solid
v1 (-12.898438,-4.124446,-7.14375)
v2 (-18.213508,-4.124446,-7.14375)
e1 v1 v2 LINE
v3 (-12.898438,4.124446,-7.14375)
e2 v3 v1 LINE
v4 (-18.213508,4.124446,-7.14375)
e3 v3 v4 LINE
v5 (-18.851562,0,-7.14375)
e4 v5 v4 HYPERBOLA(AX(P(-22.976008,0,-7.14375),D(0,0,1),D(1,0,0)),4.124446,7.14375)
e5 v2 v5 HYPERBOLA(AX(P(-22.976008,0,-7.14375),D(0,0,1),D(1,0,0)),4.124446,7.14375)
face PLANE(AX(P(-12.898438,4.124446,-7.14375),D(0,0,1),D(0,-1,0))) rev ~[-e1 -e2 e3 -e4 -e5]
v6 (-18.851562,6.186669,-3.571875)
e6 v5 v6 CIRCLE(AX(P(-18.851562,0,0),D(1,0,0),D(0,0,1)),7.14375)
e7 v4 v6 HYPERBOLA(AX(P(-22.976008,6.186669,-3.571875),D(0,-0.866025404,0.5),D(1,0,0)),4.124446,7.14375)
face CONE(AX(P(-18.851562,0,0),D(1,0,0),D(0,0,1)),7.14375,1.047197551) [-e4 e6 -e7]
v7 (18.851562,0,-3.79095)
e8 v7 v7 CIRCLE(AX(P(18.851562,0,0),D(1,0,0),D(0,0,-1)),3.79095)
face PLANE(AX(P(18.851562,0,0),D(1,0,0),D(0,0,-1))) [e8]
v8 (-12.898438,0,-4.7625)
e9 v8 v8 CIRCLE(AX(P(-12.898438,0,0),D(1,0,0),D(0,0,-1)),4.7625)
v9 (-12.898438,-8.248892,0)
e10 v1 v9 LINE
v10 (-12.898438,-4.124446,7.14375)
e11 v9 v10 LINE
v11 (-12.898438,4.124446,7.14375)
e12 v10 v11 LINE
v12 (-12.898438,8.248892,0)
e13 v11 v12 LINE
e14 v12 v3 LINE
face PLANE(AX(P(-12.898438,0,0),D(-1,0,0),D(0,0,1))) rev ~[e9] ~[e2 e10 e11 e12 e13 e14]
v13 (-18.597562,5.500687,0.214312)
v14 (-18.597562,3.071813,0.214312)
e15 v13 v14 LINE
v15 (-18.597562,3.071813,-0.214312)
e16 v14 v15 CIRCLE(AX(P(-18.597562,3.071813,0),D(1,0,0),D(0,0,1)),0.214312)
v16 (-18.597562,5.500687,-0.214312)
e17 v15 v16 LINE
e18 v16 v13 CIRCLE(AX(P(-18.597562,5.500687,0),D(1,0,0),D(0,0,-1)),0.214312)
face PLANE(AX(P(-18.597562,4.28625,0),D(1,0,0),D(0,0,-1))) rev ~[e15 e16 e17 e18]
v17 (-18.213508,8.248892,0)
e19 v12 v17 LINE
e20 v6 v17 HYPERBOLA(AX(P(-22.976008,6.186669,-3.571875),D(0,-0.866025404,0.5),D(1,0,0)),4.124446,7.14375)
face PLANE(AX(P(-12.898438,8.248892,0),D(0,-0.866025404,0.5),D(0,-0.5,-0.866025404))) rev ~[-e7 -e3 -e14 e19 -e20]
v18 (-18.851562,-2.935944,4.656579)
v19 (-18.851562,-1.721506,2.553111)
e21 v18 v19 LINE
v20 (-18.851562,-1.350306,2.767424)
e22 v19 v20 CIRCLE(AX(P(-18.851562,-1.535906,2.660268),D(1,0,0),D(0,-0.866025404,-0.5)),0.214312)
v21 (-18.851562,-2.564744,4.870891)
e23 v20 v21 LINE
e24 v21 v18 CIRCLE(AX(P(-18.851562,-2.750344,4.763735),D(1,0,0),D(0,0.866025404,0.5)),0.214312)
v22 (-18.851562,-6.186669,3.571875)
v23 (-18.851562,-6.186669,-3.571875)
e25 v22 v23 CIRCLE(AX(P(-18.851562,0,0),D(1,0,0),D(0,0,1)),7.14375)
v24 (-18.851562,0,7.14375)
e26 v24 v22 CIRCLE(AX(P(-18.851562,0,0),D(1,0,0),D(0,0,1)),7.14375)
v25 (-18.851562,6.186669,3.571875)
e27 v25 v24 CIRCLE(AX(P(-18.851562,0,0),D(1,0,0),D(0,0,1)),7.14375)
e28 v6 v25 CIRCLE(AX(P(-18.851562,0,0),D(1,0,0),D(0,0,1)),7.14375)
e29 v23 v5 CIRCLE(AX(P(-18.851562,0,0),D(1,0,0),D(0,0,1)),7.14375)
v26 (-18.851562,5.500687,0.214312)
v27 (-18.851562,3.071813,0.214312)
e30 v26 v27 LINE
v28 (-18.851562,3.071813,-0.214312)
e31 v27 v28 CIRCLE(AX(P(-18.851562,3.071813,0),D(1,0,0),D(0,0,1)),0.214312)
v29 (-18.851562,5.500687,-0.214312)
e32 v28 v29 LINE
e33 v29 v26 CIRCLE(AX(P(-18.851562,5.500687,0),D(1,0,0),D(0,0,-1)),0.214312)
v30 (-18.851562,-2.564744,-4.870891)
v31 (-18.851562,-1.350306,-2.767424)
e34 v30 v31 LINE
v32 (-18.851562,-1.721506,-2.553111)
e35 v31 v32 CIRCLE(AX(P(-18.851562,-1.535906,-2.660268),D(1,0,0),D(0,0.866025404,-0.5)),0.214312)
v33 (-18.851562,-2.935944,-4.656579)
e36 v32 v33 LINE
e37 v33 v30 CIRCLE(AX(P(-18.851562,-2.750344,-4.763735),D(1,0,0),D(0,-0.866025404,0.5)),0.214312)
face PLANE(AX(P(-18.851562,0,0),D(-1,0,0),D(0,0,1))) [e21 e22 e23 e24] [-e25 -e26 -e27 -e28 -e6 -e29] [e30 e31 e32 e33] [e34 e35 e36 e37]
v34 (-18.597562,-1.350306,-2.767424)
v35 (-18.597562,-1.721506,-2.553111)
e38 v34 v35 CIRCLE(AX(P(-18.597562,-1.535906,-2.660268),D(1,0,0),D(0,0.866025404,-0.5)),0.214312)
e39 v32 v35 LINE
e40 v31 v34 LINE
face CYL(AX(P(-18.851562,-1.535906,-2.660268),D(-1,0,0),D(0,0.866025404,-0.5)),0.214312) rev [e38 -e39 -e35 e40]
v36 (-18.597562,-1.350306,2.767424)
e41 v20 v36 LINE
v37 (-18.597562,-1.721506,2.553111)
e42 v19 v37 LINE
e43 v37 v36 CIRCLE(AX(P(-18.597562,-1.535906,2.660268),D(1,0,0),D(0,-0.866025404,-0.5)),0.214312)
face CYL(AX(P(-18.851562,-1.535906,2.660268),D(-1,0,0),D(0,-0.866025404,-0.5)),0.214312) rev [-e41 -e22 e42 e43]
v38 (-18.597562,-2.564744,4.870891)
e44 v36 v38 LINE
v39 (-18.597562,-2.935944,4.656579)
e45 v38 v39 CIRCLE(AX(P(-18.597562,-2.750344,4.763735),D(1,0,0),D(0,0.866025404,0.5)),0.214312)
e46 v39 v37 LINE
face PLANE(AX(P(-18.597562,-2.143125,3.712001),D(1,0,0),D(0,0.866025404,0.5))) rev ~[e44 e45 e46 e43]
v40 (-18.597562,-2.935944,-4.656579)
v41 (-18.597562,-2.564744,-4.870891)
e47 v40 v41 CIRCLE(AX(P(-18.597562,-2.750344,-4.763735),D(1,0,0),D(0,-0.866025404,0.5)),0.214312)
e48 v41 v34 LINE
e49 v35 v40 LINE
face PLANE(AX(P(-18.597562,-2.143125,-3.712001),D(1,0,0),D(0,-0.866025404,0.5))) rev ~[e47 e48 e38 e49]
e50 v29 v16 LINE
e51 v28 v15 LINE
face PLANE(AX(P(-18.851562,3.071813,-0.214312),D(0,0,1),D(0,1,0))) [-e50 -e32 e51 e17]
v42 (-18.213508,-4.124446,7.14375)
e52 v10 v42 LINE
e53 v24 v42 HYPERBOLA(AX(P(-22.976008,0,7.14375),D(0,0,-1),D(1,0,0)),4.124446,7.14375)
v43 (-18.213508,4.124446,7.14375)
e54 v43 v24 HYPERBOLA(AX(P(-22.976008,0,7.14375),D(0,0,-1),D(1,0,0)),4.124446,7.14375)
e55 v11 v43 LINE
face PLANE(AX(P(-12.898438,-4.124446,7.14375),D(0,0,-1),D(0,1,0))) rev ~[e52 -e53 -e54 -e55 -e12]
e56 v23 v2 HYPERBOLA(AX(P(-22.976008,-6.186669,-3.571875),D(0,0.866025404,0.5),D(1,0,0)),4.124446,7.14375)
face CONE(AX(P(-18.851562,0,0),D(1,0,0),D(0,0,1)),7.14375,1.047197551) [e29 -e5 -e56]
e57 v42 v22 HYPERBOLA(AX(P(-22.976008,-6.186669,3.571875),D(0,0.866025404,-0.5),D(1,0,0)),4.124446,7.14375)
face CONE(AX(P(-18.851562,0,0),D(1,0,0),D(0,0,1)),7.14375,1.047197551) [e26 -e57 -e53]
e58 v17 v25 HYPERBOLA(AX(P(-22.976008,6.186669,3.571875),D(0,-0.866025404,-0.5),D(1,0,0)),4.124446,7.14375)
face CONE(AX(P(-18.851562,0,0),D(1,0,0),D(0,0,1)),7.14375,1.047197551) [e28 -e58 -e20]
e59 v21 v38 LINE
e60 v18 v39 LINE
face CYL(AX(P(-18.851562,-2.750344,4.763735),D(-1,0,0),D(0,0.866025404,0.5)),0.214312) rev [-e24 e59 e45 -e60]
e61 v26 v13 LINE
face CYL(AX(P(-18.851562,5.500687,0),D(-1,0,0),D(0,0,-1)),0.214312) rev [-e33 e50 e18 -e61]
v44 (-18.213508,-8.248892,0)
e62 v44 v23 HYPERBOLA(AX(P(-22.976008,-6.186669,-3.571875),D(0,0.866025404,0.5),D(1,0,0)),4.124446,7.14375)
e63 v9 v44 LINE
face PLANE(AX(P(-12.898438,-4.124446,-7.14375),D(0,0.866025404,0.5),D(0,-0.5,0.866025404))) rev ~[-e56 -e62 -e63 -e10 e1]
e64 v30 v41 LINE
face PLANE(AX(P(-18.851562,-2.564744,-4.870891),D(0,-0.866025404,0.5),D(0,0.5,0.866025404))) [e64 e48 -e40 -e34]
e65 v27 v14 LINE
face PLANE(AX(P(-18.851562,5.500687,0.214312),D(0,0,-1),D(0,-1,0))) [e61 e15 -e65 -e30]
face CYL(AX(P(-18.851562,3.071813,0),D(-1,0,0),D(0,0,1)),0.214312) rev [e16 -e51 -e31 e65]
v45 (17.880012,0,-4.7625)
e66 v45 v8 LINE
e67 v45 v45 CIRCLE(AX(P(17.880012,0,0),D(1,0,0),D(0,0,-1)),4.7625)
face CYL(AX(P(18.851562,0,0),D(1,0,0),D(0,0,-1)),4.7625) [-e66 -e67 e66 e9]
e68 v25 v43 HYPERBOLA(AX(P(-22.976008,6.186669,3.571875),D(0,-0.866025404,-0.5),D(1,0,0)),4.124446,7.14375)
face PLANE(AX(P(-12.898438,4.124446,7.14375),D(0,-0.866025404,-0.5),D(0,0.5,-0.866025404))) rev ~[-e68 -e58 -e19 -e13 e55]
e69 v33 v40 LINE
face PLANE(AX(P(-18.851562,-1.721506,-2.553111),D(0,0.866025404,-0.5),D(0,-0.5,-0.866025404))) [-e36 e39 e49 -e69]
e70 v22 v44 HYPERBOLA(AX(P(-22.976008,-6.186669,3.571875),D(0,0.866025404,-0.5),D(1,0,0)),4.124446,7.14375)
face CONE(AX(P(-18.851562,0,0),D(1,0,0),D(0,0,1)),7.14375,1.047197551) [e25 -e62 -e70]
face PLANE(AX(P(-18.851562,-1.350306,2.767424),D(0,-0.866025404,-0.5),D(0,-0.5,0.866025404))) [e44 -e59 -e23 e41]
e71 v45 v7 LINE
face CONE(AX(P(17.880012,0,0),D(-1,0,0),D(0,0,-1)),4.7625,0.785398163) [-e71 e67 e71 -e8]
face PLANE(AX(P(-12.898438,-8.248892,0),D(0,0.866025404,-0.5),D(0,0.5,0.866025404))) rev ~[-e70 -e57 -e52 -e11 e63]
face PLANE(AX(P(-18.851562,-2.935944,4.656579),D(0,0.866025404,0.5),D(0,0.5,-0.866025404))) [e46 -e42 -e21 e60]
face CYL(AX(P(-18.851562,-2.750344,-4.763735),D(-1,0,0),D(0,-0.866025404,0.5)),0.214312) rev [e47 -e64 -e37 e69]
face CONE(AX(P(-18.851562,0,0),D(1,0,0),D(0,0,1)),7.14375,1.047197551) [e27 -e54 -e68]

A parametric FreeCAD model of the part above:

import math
import FreeCAD as App
import Part
import Sketcher
from FreeCAD import Vector
Q = App.Units.Quantity


def edges_at(feature, points):
    """Names of the edges that pass closest to the given points."""
    edges = feature.Shape.Edges
    near = lambda p: min(range(len(edges)), key=lambda i: edges[i].distToShape(Part.Vertex(*p))[0])
    return sorted({f"Edge{near(p) + 1}" for p in points})


def add_polygon(sketch, points):
    """Adds a closed chain of lines whose ends are joined by coincident constraints."""
    first, n = sketch.GeometryCount, len(points)
    for a, b in zip(points, points[1:] + points[:1]):
        sketch.addGeometry(Part.LineSegment(App.Vector(*a, 0), App.Vector(*b, 0)), False)
    for i in range(n):
        sketch.addConstraint(Sketcher.Constraint("Coincident", first + i, 2, first + (i + 1) % n, 1))

doc = App.newDocument("Part")
body = doc.addObject("PartDesign::Body", "Body")

sketch1 = body.newObject("Sketcher::SketchObject", "Sketch")
sketch1.AttachmentSupport = (doc.getObject("YZ_Plane"), [""])
sketch1.MapMode = "FlatFace"
sketch1.AttachmentOffset = App.Placement(Vector(0, 0, 18.851562), App.Rotation())
sketch1.addGeometry(Part.Circle(Vector(0, 0, 0), Vector(0, 0, 1), 4.7625), False)
sketch1.addConstraint(Sketcher.Constraint("Coincident", 0, 3, -1, 1))
sketch1.addConstraint(Sketcher.Constraint("Diameter", 0, Q("0.375 in")))
pad1 = body.newObject("PartDesign::Pad", "Pad")
pad1.Profile = sketch1
pad1.Length = Q("1.25 in")
pad1.Reversed = True
doc.recompute()

chamfer = body.newObject("PartDesign::Chamfer", "Chamfer")
chamfer.Base = (pad1, edges_at(pad1, [(18.852, 0, 4.763)]))
chamfer.Size = 0.97155

sketch2 = body.newObject("Sketcher::SketchObject", "Sketch001")
sketch2.AttachmentSupport = (doc.getObject("YZ_Plane"), [""])
sketch2.MapMode = "FlatFace"
sketch2.AttachmentOffset = App.Placement(Vector(0, 0, -12.898438), App.Rotation())
add_polygon(sketch2, [(4.124446, 7.14375), (8.248892, 0), (4.124446, -7.14375), (-4.124446, -7.14375), (-8.248892, 0), (-4.124446, 7.14375)])
sketch2.addConstraint(Sketcher.Constraint("Horizontal", 2))
sketch2.addConstraint(Sketcher.Constraint("Horizontal", 5))
sketch2.addConstraint(Sketcher.Constraint("Symmetric", 0, 2, 3, 2, -1, 1))
sketch2.addConstraint(Sketcher.Constraint("Symmetric", 1, 2, 4, 2, -1, 1))
sketch2.addConstraint(Sketcher.Constraint("PointOnObject", 0, 2, -1))
sketch2.addConstraint(Sketcher.Constraint("Parallel", 0, 3))
sketch2.addConstraint(Sketcher.Constraint("Vertical", 2, 2, 4, 2))
sketch2.addConstraint(Sketcher.Constraint("Angle", 0, Q("-60 deg")))
sketch2.addConstraint(Sketcher.Constraint("DistanceY", 1, 2, -1, 1, Q("0.28125 in")))
sketch2.addConstraint(Sketcher.Constraint("DistanceX", 2, 2, 2, 1, Q("8.248892 mm")))
pad2 = body.newObject("PartDesign::Pad", "Pad001")
pad2.Profile = sketch2
pad2.Length = Q("0.234375 in")
pad2.Reversed = True

sketch3 = body.newObject("Sketcher::SketchObject", "Sketch002")
sketch3.AttachmentSupport = (doc.getObject("YZ_Plane"), [""])
sketch3.MapMode = "FlatFace"
sketch3.AttachmentOffset = App.Placement(Vector(0, 0, -18.851562), App.Rotation())
add_polygon(sketch3, [(80.641, -79.536), (-80.641, -79.536), (-80.641, 79.536), (80.641, 79.536)])
sketch3.addGeometry(Part.Circle(Vector(0, 0, 0), Vector(0, 0, 1), 7.14375), False)
sketch3.addConstraint(Sketcher.Constraint("Horizontal", 0))
sketch3.addConstraint(Sketcher.Constraint("Vertical", 1))
sketch3.addConstraint(Sketcher.Constraint("Horizontal", 2))
sketch3.addConstraint(Sketcher.Constraint("Vertical", 3))
sketch3.addConstraint(Sketcher.Constraint("Coincident", 4, 3, -1, 1))
sketch3.addConstraint(Sketcher.Constraint("Symmetric", 0, 2, 2, 2, -1, 1))
sketch3.addConstraint(Sketcher.Constraint("Diameter", 4, Q("0.5625 in")))
sketch3.addConstraint(Sketcher.Constraint("DistanceX", 0, 2, 0, 1, Q("161.282 mm")))
sketch3.addConstraint(Sketcher.Constraint("DistanceY", 1, 1, 1, 2, Q("159.072 mm")))
pocket1 = body.newObject("PartDesign::Pocket", "Pocket")
pocket1.Profile = sketch3
pocket1.Length = 38.703125
pocket1.Reversed = True
pocket1.TaperAngle = 60

sketch4 = body.newObject("Sketcher::SketchObject", "Sketch003")
sketch4.AttachmentSupport = (doc.getObject("YZ_Plane"), [""])
sketch4.MapMode = "FlatFace"
sketch4.AttachmentOffset = App.Placement(Vector(0, 0, -18.851562), App.Rotation())
sketch4.addGeometry(Part.LineSegment(Vector(3.071813, 0.214312, 0), Vector(5.500687, 0.214312, 0)), False)
sketch4.addGeometry(Part.ArcOfCircle(Part.Circle(Vector(5.500687, 0, 0), Vector(0, 0, 1), 0.214312), math.radians(-90), math.radians(90)), False)
sketch4.addGeometry(Part.LineSegment(Vector(5.500687, -0.214312, 0), Vector(3.071813, -0.214312, 0)), False)
sketch4.addGeometry(Part.ArcOfCircle(Part.Circle(Vector(3.071813, 0, 0), Vector(0, 0, 1), 0.214312), math.radians(90), math.radians(270)), False)
sketch4.addConstraint(Sketcher.Constraint("Tangent", 0, 2, 1, 2))
sketch4.addConstraint(Sketcher.Constraint("Tangent", 1, 1, 2, 1))
sketch4.addConstraint(Sketcher.Constraint("Tangent", 2, 2, 3, 2))
sketch4.addConstraint(Sketcher.Constraint("Tangent", 3, 1, 0, 1))
sketch4.addConstraint(Sketcher.Constraint("Horizontal", 0))
sketch4.addConstraint(Sketcher.Constraint("Horizontal", 2))
sketch4.addConstraint(Sketcher.Constraint("PointOnObject", 1, 3, -1))
sketch4.addConstraint(Sketcher.Constraint("Radius", 1, Q("0.214312 mm")))
sketch4.addConstraint(Sketcher.Constraint("DistanceX", 0, 1, 0, 2, Q("2.428875 mm")))
sketch4.addConstraint(Sketcher.Constraint("DistanceX", -1, 1, 1, 3, Q("5.500687 mm")))
pocket2 = body.newObject("PartDesign::Pocket", "Pocket001")
pocket2.Profile = sketch4
pocket2.Length = Q("0.01 in")
pocket2.Reversed = True
doc.recompute()

polarpattern = body.newObject("PartDesign::PolarPattern", "PolarPattern")
polarpattern.Originals = [pocket2]
polarpattern.Axis = (doc.getObject("X_Axis"), [""])
polarpattern.Angle = 360
polarpattern.Occurrences = 3
body.Tip = polarpattern

doc.recompute()
